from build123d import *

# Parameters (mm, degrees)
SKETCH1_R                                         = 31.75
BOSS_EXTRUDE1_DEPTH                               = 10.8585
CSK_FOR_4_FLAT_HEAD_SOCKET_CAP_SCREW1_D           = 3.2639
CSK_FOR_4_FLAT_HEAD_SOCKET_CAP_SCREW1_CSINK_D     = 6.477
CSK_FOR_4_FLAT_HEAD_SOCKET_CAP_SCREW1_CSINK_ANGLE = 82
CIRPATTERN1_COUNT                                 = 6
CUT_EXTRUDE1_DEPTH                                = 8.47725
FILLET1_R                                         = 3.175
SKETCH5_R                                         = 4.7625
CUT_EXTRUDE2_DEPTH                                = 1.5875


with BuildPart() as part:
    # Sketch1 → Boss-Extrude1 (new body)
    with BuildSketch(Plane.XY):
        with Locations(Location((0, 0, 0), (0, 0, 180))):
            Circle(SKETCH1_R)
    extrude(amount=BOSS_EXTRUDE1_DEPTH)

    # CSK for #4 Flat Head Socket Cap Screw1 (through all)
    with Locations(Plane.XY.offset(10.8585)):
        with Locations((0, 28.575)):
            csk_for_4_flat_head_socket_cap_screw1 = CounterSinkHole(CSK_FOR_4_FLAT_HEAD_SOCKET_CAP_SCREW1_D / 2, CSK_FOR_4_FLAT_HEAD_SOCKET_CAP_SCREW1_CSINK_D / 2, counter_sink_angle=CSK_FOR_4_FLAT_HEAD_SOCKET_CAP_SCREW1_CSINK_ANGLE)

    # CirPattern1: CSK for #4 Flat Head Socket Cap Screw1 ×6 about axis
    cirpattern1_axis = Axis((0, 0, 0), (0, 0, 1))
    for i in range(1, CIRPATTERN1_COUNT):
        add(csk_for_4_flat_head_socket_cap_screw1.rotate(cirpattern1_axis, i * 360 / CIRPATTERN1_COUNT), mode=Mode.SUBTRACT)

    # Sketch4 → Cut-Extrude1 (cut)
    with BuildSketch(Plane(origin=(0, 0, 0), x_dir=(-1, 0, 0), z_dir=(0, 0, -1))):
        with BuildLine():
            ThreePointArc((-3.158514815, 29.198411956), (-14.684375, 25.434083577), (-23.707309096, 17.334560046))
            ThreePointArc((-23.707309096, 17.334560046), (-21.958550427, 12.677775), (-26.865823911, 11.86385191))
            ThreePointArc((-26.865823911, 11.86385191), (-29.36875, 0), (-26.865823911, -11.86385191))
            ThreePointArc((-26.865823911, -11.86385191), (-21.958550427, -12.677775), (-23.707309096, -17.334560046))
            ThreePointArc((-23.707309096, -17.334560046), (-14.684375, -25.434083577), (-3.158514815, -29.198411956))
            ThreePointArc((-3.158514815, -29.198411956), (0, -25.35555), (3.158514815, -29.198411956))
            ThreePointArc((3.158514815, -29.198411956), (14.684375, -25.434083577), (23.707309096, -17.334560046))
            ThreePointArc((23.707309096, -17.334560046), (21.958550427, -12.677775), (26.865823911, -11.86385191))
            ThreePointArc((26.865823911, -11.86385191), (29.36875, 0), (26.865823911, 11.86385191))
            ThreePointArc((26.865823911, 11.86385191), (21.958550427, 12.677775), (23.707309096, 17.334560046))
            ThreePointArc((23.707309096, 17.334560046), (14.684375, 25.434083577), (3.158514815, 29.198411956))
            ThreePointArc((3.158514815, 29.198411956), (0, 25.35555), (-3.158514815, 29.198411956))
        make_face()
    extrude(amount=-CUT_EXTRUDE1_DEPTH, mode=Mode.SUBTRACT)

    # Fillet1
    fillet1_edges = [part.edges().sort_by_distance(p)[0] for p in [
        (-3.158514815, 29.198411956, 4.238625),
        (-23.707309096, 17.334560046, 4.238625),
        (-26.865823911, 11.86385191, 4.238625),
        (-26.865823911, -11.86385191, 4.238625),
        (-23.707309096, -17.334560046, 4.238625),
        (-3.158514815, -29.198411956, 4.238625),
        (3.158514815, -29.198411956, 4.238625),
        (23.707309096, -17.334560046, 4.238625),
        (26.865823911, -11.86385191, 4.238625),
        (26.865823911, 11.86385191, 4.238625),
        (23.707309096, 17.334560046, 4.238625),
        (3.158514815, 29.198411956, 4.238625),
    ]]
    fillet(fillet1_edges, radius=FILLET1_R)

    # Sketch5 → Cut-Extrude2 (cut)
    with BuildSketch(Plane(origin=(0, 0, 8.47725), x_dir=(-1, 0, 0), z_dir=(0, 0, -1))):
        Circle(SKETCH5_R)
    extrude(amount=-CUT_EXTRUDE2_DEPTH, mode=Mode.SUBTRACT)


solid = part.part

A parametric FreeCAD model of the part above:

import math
import FreeCAD as App
import Part
import Sketcher
from FreeCAD import Vector
Q = App.Units.Quantity


def edges_at(feature, points):
    """Names of the edges that pass closest to the given points."""
    edges = feature.Shape.Edges
    near = lambda p: min(range(len(edges)), key=lambda i: edges[i].distToShape(Part.Vertex(*p))[0])
    return sorted({f"Edge{near(p) + 1}" for p in points})

doc = App.newDocument("Part")
body = doc.addObject("PartDesign::Body", "Body")

# Sketch on XY plane
sketch1 = body.newObject("Sketcher::SketchObject", "Sketch")
sketch1.AttachmentSupport = (doc.getObject("XY_Plane"), [""])
sketch1.MapMode = "FlatFace"
sketch1.addGeometry(Part.Circle(Vector(0, 0, 0), Vector(0, 0, 1), 32), False)
sketch1.addConstraint([
    Sketcher.Constraint("Coincident", 0, 3, -1, 1),
    Sketcher.Constraint("Diameter", 0, Q("2.5 in")),
])
pad1 = body.newObject("PartDesign::Pad", "Pad")
pad1.Profile = sketch1
pad1.Length = Q("0.4275 in")

# Sketch on XY plane
sketch2 = body.newObject("Sketcher::SketchObject", "Sketch001")
sketch2.AttachmentSupport = (doc.getObject("XY_Plane"), [""])
sketch2.MapMode = "FlatFace"
sketch2.AttachmentOffset = App.Placement(Vector(0, 0, 0.4275 * 25.4), App.Rotation())
sketch2.addGeometry(Part.Circle(Vector(0, 28.6, 0), Vector(0, 0, 1), 1.6), False)
sketch2.addConstraint([
    Sketcher.Constraint("PointOnObject", 0, 3, -2),
    Sketcher.Constraint("Diameter", 0, Q("0.1285 in")),
    Sketcher.Constraint("DistanceY", -1, 1, 0, 3, Q("1.125 in")),
])
doc.recompute()
hole = body.newObject("PartDesign::Hole", "Hole")
hole.Profile = sketch2
hole.ThreadType = "None"
hole.Diameter = Q("0.1285 in")
hole.DepthType = "ThroughAll"
hole.HoleCutType = "Countersink"
hole.HoleCutDiameter = Q("0.255 in")
hole.HoleCutCountersinkAngle = 82
doc.recompute()

polarpattern = body.newObject("PartDesign::PolarPattern", "PolarPattern")
polarpattern.Originals = [hole]
polarpattern.Axis = (doc.getObject("Z_Axis"), [""])
polarpattern.Angle = 360
polarpattern.Occurrences = 6
body.Tip = polarpattern

# Sketch on XY plane
sketch3 = body.newObject("Sketcher::SketchObject", "Sketch002")
sketch3.AttachmentSupport = (doc.getObject("XY_Plane"), [""])
sketch3.MapMode = "FlatFace"
sketch3.addGeometry([
    Part.ArcOfCircle(Part.Circle(Vector(0, 0, 0), Vector(0, 0, 1), 29.4), math.radians(36), math.radians(84)),  # 0
    Part.ArcOfCircle(Part.Circle(Vector(24.7, 14.3, 0), Vector(0, 0, 1), 3.2), math.radians(109), math.radians(311)),  # 1
    Part.ArcOfCircle(Part.Circle(Vector(0, 0, 0), Vector(0, 0, 1), 29.4), math.radians(-24), math.radians(24)),  # 2
    Part.ArcOfCircle(Part.Circle(Vector(24.7, -14.3, 0), Vector(0, 0, 1), 3.2), math.radians(49), math.radians(251)),  # 3
    Part.ArcOfCircle(Part.Circle(Vector(0, 0, 0), Vector(0, 0, 1), 29.4), math.radians(-84), math.radians(-36)),  # 4
    Part.ArcOfCircle(Part.Circle(Vector(0, -28.6, 0), Vector(0, 0, 1), 3.2), math.radians(-11), math.radians(191)),  # 5
    Part.ArcOfCircle(Part.Circle(Vector(0, 0, 0), Vector(0, 0, 1), 29.4), math.radians(-144), math.radians(-96)),  # 6
    Part.ArcOfCircle(Part.Circle(Vector(-24.7, -14.3, 0), Vector(0, 0, 1), 3.2), math.radians(-71), math.radians(131)),  # 7
    Part.ArcOfCircle(Part.Circle(Vector(0, 0, 0), Vector(0, 0, 1), 29.4), math.radians(156), math.radians(204)),  # 8
    Part.ArcOfCircle(Part.Circle(Vector(-24.7, 14.3, 0), Vector(0, 0, 1), 3.2), math.radians(-131), math.radians(71)),  # 9
    Part.ArcOfCircle(Part.Circle(Vector(0, 0, 0), Vector(0, 0, 1), 29.4), math.radians(96), math.radians(144)),  # 10
    Part.ArcOfCircle(Part.Circle(Vector(0, 28.6, 0), Vector(0, 0, 1), 3.2), math.radians(169), math.radians(371)),  # 11
], False)
sketch3.addConstraint([
    Sketcher.Constraint("Coincident", 0, 1, 1, 1),
    Sketcher.Constraint("Coincident", 1, 2, 2, 2),
    Sketcher.Constraint("Coincident", 2, 1, 3, 1),
    Sketcher.Constraint("Coincident", 3, 2, 4, 2),
    Sketcher.Constraint("Coincident", 4, 1, 5, 1),
    Sketcher.Constraint("Coincident", 5, 2, 6, 2),
    Sketcher.Constraint("Coincident", 6, 1, 7, 1),
    Sketcher.Constraint("Coincident", 7, 2, 8, 2),
    Sketcher.Constraint("Coincident", 8, 1, 9, 1),
    Sketcher.Constraint("Coincident", 9, 2, 10, 2),
    Sketcher.Constraint("Coincident", 10, 1, 11, 1),
    Sketcher.Constraint("Coincident", 11, 2, 0, 2),
    Sketcher.Constraint("Coincident", 0, 3, -1, 1),
    Sketcher.Constraint("Coincident", 2, 3, -1, 1),
    Sketcher.Constraint("Coincident", 4, 3, -1, 1),
    Sketcher.Constraint("Coincident", 6, 3, -1, 1),
    Sketcher.Constraint("Coincident", 8, 3, -1, 1),
    Sketcher.Constraint("Coincident", 10, 3, -1, 1),
    Sketcher.Constraint("Equal", 0, 2),
    Sketcher.Constraint("Equal", 1, 3),
    Sketcher.Constraint("Equal", 2, 4),
    Sketcher.Constraint("Equal", 3, 5),
    Sketcher.Constraint("Equal", 4, 6),
    Sketcher.Constraint("Equal", 5, 7),
    Sketcher.Constraint("Equal", 6, 8),
    Sketcher.Constraint("Equal", 7, 9),
    Sketcher.Constraint("Equal", 8, 10),
    Sketcher.Constraint("Equal", 9, 11),
    Sketcher.Constraint("Symmetric", 1, 3, 7, 3, -1, 1),
    Sketcher.Constraint("Symmetric", 3, 3, 9, 3, -1, 1),
    Sketcher.Constraint("Symmetric", 5, 3, 11, 3, -1, 1),
    Sketcher.Constraint("Symmetric", 3, 3, 7, 3, -2),
    Sketcher.Constraint("PointOnObject", 5, 3, -2),
    Sketcher.Constraint("Radius", 0, Q("1.15625 in")),
    Sketcher.Constraint("DistanceY", -1, 1, 1, 3, Q("0.5625 in")),
    Sketcher.Constraint("DistanceY", 5, 3, -1, 1, Q("1.125 in")),
    Sketcher.Constraint("Radius", 1, Q("3.21945 mm")),
    Sketcher.Constraint("DistanceX", -1, 1, 0, 1, Q("23.707309 mm")),
])
pocket1 = body.newObject("PartDesign::Pocket", "Pocket")
pocket1.Profile = sketch3
pocket1.Length = 8.47725
pocket1.Reversed = True
doc.recompute()

fillet = body.newObject("PartDesign::Fillet", "Fillet")
fillet.Base = (pocket1, edges_at(pocket1, [
    (-3.159, 29.198, 4.239),
    (-23.707, 17.335, 4.239),
    (-26.866, 11.864, 4.239),
    (-26.866, -11.864, 4.239),
    (-23.707, -17.335, 4.239),
    (-3.159, -29.198, 4.239),
    (3.159, -29.198, 4.239),
    (23.707, -17.335, 4.239),
    (26.866, -11.864, 4.239),
    (26.866, 11.864, 4.239),
    (23.707, 17.335, 4.239),
    (3.159, 29.198, 4.239),
]))
fillet.Radius = Q("0.125 in")

# Sketch on XY plane
sketch4 = body.newObject("Sketcher::SketchObject", "Sketch003")
sketch4.AttachmentSupport = (doc.getObject("XY_Plane"), [""])
sketch4.MapMode = "FlatFace"
sketch4.AttachmentOffset = App.Placement(Vector(0, 0, 8.47725), App.Rotation())
sketch4.addGeometry(Part.Circle(Vector(0, 0, 0), Vector(0, 0, 1), 4.8), False)
sketch4.addConstraint([
    Sketcher.Constraint("Coincident", 0, 3, -1, 1),
    Sketcher.Constraint("Diameter", 0, Q("0.375 in")),
])
pocket2 = body.newObject("PartDesign::Pocket", "Pocket001")
pocket2.Profile = sketch4
pocket2.Length = Q("0.0625 in")
pocket2.Reversed = True

doc.recompute()
